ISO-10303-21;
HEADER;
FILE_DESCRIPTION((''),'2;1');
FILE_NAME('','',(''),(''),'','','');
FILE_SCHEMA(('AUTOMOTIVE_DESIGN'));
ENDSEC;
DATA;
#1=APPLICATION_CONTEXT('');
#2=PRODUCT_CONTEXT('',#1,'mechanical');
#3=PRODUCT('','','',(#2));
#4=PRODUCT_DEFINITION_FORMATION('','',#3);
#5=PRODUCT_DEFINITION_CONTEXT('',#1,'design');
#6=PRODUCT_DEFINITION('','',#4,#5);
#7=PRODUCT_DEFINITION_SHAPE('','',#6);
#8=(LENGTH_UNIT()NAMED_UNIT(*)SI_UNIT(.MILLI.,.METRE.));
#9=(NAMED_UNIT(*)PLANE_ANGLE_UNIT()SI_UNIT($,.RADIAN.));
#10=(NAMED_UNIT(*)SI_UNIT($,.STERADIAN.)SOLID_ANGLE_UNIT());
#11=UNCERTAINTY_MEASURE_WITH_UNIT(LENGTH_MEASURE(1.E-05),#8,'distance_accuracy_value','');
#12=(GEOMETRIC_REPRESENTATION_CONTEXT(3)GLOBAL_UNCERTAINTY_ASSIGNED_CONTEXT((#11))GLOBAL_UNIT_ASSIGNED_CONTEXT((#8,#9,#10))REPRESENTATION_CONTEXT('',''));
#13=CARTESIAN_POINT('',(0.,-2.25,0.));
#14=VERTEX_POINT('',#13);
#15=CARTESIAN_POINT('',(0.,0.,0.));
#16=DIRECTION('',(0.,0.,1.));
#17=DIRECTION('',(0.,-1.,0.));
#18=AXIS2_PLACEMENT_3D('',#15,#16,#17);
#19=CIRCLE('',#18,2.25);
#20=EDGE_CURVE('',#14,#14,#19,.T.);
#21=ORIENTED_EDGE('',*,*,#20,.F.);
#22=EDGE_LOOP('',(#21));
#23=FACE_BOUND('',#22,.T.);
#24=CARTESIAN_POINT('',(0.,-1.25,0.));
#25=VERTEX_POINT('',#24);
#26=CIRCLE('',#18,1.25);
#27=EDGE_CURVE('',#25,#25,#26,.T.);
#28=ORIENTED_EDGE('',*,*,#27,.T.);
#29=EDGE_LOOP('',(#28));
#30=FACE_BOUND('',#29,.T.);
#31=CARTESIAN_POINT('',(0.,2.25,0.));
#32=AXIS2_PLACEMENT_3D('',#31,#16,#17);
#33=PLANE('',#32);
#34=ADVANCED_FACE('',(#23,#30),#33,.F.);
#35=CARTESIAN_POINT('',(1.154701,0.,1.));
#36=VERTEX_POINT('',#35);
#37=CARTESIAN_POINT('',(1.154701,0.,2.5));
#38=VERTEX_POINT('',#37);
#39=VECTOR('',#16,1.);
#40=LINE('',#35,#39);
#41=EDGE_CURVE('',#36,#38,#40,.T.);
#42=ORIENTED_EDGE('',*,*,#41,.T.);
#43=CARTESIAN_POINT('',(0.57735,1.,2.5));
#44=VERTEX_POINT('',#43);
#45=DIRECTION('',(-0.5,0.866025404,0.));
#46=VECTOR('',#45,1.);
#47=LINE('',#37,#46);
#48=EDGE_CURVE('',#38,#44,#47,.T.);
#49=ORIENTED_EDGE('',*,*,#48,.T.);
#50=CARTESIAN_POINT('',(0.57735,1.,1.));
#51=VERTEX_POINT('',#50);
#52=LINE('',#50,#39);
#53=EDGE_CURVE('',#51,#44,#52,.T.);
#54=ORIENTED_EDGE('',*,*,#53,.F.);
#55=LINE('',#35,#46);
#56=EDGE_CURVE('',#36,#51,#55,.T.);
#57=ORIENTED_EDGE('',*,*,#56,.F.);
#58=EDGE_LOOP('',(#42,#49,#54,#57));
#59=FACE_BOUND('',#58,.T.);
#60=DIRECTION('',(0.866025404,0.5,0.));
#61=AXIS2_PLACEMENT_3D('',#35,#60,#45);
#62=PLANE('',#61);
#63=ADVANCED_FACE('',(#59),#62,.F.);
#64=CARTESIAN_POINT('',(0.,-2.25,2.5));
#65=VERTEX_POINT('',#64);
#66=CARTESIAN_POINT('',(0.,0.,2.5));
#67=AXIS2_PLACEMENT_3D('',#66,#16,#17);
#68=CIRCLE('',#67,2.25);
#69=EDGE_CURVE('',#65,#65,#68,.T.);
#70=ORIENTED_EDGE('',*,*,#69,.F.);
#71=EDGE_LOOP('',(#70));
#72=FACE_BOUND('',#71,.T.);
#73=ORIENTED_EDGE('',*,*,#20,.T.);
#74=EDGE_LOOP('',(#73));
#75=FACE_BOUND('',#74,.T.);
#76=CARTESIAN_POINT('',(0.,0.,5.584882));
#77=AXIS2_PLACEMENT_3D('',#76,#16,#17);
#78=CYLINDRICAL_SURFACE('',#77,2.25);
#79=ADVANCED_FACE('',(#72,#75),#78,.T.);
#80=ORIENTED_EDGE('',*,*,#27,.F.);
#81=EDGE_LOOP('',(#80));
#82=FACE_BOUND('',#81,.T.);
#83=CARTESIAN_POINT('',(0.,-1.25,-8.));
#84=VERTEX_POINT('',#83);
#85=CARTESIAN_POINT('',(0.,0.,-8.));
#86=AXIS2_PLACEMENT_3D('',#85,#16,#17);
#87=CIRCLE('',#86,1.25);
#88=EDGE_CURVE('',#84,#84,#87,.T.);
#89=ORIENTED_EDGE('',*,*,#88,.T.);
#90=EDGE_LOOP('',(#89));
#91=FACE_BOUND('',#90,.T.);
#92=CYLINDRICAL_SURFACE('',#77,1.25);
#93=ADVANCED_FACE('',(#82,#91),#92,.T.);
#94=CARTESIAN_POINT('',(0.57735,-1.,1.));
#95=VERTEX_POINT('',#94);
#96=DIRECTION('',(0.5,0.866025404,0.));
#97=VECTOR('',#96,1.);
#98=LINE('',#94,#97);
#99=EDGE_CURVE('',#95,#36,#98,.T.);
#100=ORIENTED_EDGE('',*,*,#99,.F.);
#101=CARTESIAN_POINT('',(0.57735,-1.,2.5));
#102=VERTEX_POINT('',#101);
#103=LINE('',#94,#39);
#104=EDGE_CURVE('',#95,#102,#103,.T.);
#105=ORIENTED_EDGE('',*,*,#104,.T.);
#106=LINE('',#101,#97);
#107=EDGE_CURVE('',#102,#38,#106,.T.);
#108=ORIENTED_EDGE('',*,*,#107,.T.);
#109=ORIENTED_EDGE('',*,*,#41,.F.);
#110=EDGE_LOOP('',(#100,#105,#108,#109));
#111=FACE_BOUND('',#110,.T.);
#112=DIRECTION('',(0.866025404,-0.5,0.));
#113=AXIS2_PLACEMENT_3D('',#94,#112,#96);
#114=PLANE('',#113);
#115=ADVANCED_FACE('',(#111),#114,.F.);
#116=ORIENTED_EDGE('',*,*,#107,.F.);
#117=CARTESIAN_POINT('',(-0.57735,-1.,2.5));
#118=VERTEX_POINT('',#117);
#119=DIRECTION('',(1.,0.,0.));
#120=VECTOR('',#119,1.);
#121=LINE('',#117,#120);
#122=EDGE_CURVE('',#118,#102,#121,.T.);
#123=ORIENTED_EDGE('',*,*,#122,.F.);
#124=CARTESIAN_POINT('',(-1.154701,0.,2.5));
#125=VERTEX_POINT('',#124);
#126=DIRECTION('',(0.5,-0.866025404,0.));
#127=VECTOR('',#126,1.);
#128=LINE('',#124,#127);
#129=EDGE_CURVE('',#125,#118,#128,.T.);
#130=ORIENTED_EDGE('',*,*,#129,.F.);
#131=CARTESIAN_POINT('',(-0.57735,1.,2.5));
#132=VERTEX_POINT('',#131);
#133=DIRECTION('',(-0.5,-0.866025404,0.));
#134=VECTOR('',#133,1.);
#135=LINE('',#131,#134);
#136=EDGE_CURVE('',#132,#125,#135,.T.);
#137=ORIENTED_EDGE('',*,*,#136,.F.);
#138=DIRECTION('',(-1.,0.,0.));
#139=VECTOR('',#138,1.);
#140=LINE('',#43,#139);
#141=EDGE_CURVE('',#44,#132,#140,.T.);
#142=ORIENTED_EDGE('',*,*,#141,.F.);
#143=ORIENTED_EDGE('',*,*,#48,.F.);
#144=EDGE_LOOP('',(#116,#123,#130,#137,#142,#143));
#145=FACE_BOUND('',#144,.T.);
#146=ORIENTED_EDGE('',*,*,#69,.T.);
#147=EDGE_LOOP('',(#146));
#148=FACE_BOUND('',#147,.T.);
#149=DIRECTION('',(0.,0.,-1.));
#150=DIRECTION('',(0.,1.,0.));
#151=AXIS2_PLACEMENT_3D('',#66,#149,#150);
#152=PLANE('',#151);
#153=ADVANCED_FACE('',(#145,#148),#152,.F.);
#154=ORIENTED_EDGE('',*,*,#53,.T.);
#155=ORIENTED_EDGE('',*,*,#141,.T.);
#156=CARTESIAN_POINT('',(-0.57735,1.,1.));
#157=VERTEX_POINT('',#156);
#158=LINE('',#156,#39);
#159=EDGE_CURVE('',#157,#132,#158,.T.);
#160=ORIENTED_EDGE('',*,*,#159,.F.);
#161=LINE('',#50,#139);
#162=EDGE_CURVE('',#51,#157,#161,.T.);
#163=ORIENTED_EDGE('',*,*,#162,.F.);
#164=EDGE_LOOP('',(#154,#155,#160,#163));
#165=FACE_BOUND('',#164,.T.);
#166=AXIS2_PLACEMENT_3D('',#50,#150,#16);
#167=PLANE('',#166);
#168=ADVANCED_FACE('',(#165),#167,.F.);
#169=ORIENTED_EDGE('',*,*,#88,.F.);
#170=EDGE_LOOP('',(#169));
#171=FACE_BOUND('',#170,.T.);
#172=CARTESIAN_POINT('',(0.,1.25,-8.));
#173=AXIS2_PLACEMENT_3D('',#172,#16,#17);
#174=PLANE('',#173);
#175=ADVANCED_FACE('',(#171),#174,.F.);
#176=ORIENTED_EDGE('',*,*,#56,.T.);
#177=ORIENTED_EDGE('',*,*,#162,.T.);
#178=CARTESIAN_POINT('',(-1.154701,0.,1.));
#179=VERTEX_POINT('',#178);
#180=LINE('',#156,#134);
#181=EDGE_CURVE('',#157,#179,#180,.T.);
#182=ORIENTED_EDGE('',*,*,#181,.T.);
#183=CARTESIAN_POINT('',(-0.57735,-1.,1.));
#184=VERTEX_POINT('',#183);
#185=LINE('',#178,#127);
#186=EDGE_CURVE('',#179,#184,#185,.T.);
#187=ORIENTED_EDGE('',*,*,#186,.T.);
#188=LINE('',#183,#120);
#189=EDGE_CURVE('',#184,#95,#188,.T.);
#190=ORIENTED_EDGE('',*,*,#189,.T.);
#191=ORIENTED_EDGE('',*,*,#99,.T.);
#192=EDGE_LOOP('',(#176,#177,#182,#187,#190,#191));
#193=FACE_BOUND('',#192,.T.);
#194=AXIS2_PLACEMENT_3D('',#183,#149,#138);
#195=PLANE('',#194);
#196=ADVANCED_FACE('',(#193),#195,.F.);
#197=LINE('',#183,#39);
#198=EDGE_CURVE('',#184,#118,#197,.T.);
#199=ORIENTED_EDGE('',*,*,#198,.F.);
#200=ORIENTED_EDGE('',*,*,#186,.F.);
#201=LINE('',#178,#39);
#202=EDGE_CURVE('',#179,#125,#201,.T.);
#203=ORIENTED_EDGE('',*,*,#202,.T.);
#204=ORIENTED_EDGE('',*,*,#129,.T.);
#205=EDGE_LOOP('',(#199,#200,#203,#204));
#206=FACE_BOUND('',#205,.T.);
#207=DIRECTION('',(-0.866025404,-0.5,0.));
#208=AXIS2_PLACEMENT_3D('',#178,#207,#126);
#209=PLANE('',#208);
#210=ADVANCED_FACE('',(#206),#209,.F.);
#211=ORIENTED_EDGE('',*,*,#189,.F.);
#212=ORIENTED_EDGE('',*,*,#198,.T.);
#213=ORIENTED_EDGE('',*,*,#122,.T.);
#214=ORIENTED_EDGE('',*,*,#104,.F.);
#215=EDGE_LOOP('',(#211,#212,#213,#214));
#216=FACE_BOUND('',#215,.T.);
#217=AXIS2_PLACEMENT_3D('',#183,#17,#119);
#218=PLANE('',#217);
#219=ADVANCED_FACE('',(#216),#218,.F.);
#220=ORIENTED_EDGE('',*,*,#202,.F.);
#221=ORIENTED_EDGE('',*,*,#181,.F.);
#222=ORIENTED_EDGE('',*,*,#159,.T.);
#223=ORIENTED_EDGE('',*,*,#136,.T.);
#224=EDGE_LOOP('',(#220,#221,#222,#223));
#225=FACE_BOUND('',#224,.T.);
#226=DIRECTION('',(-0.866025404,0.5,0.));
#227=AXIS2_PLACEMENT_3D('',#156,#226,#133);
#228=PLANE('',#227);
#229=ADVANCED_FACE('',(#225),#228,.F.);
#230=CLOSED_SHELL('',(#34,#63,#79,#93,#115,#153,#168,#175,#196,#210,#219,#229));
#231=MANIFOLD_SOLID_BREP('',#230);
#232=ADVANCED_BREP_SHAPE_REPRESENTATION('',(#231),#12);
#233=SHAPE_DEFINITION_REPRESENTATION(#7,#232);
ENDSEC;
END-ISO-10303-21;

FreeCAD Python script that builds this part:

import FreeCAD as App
import Part
import Sketcher

V = App.Vector
Q = App.Units.Quantity

doc = App.newDocument("Part")
body = doc.addObject("PartDesign::Body", "Body")

# Sketch on YZ plane
sketch1 = body.newObject("Sketcher::SketchObject", "Sketch")
sketch1.AttachmentSupport = (doc.getObject("YZ_Plane"), [""])
sketch1.MapMode = "FlatFace"
sketch1.addGeometry([
    Part.LineSegment(V(2.2, 2.5, 0), V(0, 2.5, 0)),  # 0
    Part.LineSegment(V(0, 2.5, 0), V(0, -8, 0)),  # 1
    Part.LineSegment(V(0, -8, 0), V(1.2, -8, 0)),  # 2
    Part.LineSegment(V(1.2, -8, 0), V(1.2, 0, 0)),  # 3
    Part.LineSegment(V(1.2, 0, 0), V(2.2, 0, 0)),  # 4
    Part.LineSegment(V(2.2, 0, 0), V(2.2, 2.5, 0)),  # 5
], False)
sketch1.addConstraint([
    Sketcher.Constraint("Coincident", 0, 2, 1, 1),
    Sketcher.Constraint("Coincident", 1, 2, 2, 1),
    Sketcher.Constraint("Coincident", 2, 2, 3, 1),
    Sketcher.Constraint("Coincident", 3, 2, 4, 1),
    Sketcher.Constraint("Coincident", 4, 2, 5, 1),
    Sketcher.Constraint("Coincident", 5, 2, 0, 1),
    Sketcher.Constraint("Horizontal", 0),
    Sketcher.Constraint("Vertical", 1),
    Sketcher.Constraint("Horizontal", 2),
    Sketcher.Constraint("Vertical", 3),
    Sketcher.Constraint("Horizontal", 4),
    Sketcher.Constraint("Vertical", 5),
    Sketcher.Constraint("PointOnObject", 0, 2, -2),
    Sketcher.Constraint("PointOnObject", 3, 2, -1),
    Sketcher.Constraint("DistanceX", 4, 1, 4, 2, Q("1 mm")),
    Sketcher.Constraint("DistanceY", 3, 1, 3, 2, Q("8 mm")),
    Sketcher.Constraint("DistanceY", 1, 2, 1, 1, Q("10.5 mm")),
    Sketcher.Constraint("DistanceX", 0, 2, 0, 1, Q("2.25 mm")),
])
revolution = body.newObject("PartDesign::Revolution", "Revolution")
revolution.Profile = sketch1
revolution.ReferenceAxis = (sketch1, ["V_Axis"])
revolution.Angle = 360

# Sketch on XY plane
sketch2 = body.newObject("Sketcher::SketchObject", "Sketch001")
sketch2.AttachmentSupport = (doc.getObject("XY_Plane"), [""])
sketch2.MapMode = "FlatFace"
sketch2.AttachmentOffset = App.Placement(V(0, 0, 2.5), App.Rotation())
sketch2.addGeometry([
    Part.LineSegment(V(0.6, -1, 0), V(1.2, 0, 0)),  # 0
    Part.LineSegment(V(1.2, 0, 0), V(0.6, 1, 0)),  # 1
    Part.LineSegment(V(0.6, 1, 0), V(-0.6, 1, 0)),  # 2
    Part.LineSegment(V(-0.6, 1, 0), V(-1.2, 0, 0)),  # 3
    Part.LineSegment(V(-1.2, 0, 0), V(-0.6, -1, 0)),  # 4
    Part.LineSegment(V(-0.6, -1, 0), V(0.6, -1, 0)),  # 5
], False)
sketch2.addConstraint([
    Sketcher.Constraint("Coincident", 0, 2, 1, 1),
    Sketcher.Constraint("Coincident", 1, 2, 2, 1),
    Sketcher.Constraint("Coincident", 2, 2, 3, 1),
    Sketcher.Constraint("Coincident", 3, 2, 4, 1),
    Sketcher.Constraint("Coincident", 4, 2, 5, 1),
    Sketcher.Constraint("Coincident", 5, 2, 0, 1),
    Sketcher.Constraint("Horizontal", 2),
    Sketcher.Constraint("Horizontal", 5),
    Sketcher.Constraint("Symmetric", 0, 2, 3, 2, -1, 1),
    Sketcher.Constraint("Symmetric", 1, 2, 4, 2, -1, 1),
    Sketcher.Constraint("PointOnObject", 0, 2, -1),
    Sketcher.Constraint("Parallel", 0, 3),
    Sketcher.Constraint("Vertical", 2, 2, 4, 2),
    Sketcher.Constraint("Angle", 0, Q("60 deg")),
    Sketcher.Constraint("DistanceY", -1, 1, 1, 2, Q("1 mm")),
    Sketcher.Constraint("DistanceX", 2, 2, 2, 1, Q("1.154701 mm")),
])
pocket1 = body.newObject("PartDesign::Pocket", "Pocket")
pocket1.Profile = sketch2
pocket1.Length = 1.5

doc.recompute()
